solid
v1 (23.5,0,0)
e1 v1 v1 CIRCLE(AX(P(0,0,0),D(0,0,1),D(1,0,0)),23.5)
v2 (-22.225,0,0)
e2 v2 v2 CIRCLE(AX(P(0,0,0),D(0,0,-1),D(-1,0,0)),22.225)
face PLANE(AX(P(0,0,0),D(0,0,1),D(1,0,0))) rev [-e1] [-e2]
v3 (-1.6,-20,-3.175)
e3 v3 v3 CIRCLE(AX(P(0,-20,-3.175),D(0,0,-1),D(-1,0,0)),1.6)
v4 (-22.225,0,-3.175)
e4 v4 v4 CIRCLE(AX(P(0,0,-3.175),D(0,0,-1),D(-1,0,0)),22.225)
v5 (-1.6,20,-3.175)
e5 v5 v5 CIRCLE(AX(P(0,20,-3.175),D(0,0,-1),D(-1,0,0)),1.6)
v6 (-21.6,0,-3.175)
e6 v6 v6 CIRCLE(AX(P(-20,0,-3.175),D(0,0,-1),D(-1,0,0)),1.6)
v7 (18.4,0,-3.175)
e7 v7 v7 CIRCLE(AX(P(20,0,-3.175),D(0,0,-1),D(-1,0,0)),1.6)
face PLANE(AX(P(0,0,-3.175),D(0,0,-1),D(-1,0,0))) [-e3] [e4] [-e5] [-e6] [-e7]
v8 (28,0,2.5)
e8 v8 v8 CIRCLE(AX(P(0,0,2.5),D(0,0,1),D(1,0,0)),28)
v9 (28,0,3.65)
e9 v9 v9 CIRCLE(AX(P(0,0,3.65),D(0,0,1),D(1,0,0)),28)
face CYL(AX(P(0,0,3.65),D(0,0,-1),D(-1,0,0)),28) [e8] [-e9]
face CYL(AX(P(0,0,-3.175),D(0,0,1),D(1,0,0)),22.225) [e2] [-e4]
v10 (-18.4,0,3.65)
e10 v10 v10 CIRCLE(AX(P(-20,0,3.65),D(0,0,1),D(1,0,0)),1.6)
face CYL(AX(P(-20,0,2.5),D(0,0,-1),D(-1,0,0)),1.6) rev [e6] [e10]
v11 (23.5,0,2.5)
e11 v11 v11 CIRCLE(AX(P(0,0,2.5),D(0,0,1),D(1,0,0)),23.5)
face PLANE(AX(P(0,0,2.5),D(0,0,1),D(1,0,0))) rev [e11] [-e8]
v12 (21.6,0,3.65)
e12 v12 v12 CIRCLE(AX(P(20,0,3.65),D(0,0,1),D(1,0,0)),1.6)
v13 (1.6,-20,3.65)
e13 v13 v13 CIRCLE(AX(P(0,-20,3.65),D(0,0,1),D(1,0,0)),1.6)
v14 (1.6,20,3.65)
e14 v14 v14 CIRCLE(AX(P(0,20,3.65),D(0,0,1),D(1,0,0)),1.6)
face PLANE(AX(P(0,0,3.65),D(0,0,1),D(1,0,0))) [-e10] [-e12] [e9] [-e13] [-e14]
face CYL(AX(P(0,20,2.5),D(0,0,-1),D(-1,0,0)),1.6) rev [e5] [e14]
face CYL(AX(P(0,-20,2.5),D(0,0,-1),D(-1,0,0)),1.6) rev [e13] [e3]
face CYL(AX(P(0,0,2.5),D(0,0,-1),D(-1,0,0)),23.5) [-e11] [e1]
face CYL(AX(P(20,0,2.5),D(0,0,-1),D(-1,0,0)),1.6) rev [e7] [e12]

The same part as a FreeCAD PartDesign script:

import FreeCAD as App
import Part
import Sketcher

V = App.Vector

doc = App.newDocument("Part")
body = doc.addObject("PartDesign::Body", "Body")

# Sketch on XY plane
sketch1 = body.newObject("Sketcher::SketchObject", "Sketch")
sketch1.AttachmentSupport = (doc.getObject("XY_Plane"), [""])
sketch1.MapMode = "FlatFace"
sketch1.addGeometry(Part.Circle(V(0, 0, 0), V(0, 0, 1), 23.5), False)
sketch1.addConstraint(Sketcher.Constraint("Coincident", 0, 3, -1, 1))
sketch1.addConstraint(Sketcher.Constraint("Diameter", 0, 47.0))
pad1 = body.newObject("PartDesign::Pad", "Pad")
pad1.Profile = sketch1
pad1.Length = 2.5

# Sketch on XY plane
sketch2 = body.newObject("Sketcher::SketchObject", "Sketch001")
sketch2.AttachmentSupport = (doc.getObject("XY_Plane"), [""])
sketch2.MapMode = "FlatFace"
sketch2.addGeometry(Part.Circle(V(0, 0, 0), V(0, 0, 1), 22.225), False)
sketch2.addConstraint(Sketcher.Constraint("Coincident", 0, 3, -1, 1))
sketch2.addConstraint(Sketcher.Constraint("Diameter", 0, 44.45))
pad2 = body.newObject("PartDesign::Pad", "Pad001")
pad2.Profile = sketch2
pad2.Length = 3.175
pad2.Reversed = True

# Sketch on XY plane
sketch3 = body.newObject("Sketcher::SketchObject", "Sketch002")
sketch3.AttachmentSupport = (doc.getObject("XY_Plane"), [""])
sketch3.MapMode = "FlatFace"
sketch3.AttachmentOffset = App.Placement(V(0, 0, -3.175), App.Rotation())
sketch3.addGeometry(Part.Circle(V(0, 20, 0), V(0, 0, 1), 1.6), False)
sketch3.addGeometry(Part.Circle(V(-20, 0, 0), V(0, 0, 1), 1.6), False)
sketch3.addGeometry(Part.Circle(V(0, -20, 0), V(0, 0, 1), 1.6), False)
sketch3.addGeometry(Part.Circle(V(20, 0, 0), V(0, 0, 1), 1.6), False)
sketch3.addConstraint(Sketcher.Constraint("Equal", 0, 1))
sketch3.addConstraint(Sketcher.Constraint("Equal", 1, 2))
sketch3.addConstraint(Sketcher.Constraint("Equal", 2, 3))
sketch3.addConstraint(Sketcher.Constraint("Symmetric", 0, 3, 2, 3, -1, 1))
sketch3.addConstraint(Sketcher.Constraint("Symmetric", 1, 3, 3, 3, -1, 1))
sketch3.addConstraint(Sketcher.Constraint("PointOnObject", 0, 3, -2))
sketch3.addConstraint(Sketcher.Constraint("PointOnObject", 1, 3, -1))
sketch3.addConstraint(Sketcher.Constraint("Diameter", 0, 3.2))
sketch3.addConstraint(Sketcher.Constraint("DistanceY", -1, 1, 0, 3, 20.0))
sketch3.addConstraint(Sketcher.Constraint("DistanceX", 1, 3, -1, 1, 20.0))
pocket1 = body.newObject("PartDesign::Pocket", "Pocket")
pocket1.Profile = sketch3
pocket1.Type = "ThroughAll"
pocket1.Reversed = True

# Sketch on XY plane
sketch4 = body.newObject("Sketcher::SketchObject", "Sketch003")
sketch4.AttachmentSupport = (doc.getObject("XY_Plane"), [""])
sketch4.MapMode = "FlatFace"
sketch4.AttachmentOffset = App.Placement(V(0, 0, 2.5), App.Rotation())
sketch4.addGeometry(Part.Circle(V(0, 0, 0), V(0, 0, 1), 28), False)
sketch4.addGeometry(Part.Circle(V(0, -20, 0), V(0, 0, 1), 1.6), False)
sketch4.addGeometry(Part.Circle(V(-20, 0, 0), V(0, 0, 1), 1.6), False)
sketch4.addGeometry(Part.Circle(V(20, 0, 0), V(0, 0, 1), 1.6), False)
sketch4.addGeometry(Part.Circle(V(0, 20, 0), V(0, 0, 1), 1.6), False)
sketch4.addConstraint(Sketcher.Constraint("Coincident", 0, 3, -1, 1))
sketch4.addConstraint(Sketcher.Constraint("Equal", 1, 2))
sketch4.addConstraint(Sketcher.Constraint("Equal", 2, 3))
sketch4.addConstraint(Sketcher.Constraint("Equal", 3, 4))
sketch4.addConstraint(Sketcher.Constraint("Symmetric", 2, 3, 3, 3, -1, 1))
sketch4.addConstraint(Sketcher.Constraint("Symmetric", 1, 3, 4, 3, -1, 1))
sketch4.addConstraint(Sketcher.Constraint("PointOnObject", 1, 3, -2))
sketch4.addConstraint(Sketcher.Constraint("PointOnObject", 2, 3, -1))
sketch4.addConstraint(Sketcher.Constraint("Diameter", 0, 56.0))
sketch4.addConstraint(Sketcher.Constraint("Diameter", 1, 3.2))
sketch4.addConstraint(Sketcher.Constraint("DistanceY", 1, 3, -1, 1, 20.0))
sketch4.addConstraint(Sketcher.Constraint("DistanceX", 2, 3, -1, 1, 20.0))
pad3 = body.newObject("PartDesign::Pad", "Pad002")
pad3.Profile = sketch4
pad3.Length = 1.15

doc.recompute()
